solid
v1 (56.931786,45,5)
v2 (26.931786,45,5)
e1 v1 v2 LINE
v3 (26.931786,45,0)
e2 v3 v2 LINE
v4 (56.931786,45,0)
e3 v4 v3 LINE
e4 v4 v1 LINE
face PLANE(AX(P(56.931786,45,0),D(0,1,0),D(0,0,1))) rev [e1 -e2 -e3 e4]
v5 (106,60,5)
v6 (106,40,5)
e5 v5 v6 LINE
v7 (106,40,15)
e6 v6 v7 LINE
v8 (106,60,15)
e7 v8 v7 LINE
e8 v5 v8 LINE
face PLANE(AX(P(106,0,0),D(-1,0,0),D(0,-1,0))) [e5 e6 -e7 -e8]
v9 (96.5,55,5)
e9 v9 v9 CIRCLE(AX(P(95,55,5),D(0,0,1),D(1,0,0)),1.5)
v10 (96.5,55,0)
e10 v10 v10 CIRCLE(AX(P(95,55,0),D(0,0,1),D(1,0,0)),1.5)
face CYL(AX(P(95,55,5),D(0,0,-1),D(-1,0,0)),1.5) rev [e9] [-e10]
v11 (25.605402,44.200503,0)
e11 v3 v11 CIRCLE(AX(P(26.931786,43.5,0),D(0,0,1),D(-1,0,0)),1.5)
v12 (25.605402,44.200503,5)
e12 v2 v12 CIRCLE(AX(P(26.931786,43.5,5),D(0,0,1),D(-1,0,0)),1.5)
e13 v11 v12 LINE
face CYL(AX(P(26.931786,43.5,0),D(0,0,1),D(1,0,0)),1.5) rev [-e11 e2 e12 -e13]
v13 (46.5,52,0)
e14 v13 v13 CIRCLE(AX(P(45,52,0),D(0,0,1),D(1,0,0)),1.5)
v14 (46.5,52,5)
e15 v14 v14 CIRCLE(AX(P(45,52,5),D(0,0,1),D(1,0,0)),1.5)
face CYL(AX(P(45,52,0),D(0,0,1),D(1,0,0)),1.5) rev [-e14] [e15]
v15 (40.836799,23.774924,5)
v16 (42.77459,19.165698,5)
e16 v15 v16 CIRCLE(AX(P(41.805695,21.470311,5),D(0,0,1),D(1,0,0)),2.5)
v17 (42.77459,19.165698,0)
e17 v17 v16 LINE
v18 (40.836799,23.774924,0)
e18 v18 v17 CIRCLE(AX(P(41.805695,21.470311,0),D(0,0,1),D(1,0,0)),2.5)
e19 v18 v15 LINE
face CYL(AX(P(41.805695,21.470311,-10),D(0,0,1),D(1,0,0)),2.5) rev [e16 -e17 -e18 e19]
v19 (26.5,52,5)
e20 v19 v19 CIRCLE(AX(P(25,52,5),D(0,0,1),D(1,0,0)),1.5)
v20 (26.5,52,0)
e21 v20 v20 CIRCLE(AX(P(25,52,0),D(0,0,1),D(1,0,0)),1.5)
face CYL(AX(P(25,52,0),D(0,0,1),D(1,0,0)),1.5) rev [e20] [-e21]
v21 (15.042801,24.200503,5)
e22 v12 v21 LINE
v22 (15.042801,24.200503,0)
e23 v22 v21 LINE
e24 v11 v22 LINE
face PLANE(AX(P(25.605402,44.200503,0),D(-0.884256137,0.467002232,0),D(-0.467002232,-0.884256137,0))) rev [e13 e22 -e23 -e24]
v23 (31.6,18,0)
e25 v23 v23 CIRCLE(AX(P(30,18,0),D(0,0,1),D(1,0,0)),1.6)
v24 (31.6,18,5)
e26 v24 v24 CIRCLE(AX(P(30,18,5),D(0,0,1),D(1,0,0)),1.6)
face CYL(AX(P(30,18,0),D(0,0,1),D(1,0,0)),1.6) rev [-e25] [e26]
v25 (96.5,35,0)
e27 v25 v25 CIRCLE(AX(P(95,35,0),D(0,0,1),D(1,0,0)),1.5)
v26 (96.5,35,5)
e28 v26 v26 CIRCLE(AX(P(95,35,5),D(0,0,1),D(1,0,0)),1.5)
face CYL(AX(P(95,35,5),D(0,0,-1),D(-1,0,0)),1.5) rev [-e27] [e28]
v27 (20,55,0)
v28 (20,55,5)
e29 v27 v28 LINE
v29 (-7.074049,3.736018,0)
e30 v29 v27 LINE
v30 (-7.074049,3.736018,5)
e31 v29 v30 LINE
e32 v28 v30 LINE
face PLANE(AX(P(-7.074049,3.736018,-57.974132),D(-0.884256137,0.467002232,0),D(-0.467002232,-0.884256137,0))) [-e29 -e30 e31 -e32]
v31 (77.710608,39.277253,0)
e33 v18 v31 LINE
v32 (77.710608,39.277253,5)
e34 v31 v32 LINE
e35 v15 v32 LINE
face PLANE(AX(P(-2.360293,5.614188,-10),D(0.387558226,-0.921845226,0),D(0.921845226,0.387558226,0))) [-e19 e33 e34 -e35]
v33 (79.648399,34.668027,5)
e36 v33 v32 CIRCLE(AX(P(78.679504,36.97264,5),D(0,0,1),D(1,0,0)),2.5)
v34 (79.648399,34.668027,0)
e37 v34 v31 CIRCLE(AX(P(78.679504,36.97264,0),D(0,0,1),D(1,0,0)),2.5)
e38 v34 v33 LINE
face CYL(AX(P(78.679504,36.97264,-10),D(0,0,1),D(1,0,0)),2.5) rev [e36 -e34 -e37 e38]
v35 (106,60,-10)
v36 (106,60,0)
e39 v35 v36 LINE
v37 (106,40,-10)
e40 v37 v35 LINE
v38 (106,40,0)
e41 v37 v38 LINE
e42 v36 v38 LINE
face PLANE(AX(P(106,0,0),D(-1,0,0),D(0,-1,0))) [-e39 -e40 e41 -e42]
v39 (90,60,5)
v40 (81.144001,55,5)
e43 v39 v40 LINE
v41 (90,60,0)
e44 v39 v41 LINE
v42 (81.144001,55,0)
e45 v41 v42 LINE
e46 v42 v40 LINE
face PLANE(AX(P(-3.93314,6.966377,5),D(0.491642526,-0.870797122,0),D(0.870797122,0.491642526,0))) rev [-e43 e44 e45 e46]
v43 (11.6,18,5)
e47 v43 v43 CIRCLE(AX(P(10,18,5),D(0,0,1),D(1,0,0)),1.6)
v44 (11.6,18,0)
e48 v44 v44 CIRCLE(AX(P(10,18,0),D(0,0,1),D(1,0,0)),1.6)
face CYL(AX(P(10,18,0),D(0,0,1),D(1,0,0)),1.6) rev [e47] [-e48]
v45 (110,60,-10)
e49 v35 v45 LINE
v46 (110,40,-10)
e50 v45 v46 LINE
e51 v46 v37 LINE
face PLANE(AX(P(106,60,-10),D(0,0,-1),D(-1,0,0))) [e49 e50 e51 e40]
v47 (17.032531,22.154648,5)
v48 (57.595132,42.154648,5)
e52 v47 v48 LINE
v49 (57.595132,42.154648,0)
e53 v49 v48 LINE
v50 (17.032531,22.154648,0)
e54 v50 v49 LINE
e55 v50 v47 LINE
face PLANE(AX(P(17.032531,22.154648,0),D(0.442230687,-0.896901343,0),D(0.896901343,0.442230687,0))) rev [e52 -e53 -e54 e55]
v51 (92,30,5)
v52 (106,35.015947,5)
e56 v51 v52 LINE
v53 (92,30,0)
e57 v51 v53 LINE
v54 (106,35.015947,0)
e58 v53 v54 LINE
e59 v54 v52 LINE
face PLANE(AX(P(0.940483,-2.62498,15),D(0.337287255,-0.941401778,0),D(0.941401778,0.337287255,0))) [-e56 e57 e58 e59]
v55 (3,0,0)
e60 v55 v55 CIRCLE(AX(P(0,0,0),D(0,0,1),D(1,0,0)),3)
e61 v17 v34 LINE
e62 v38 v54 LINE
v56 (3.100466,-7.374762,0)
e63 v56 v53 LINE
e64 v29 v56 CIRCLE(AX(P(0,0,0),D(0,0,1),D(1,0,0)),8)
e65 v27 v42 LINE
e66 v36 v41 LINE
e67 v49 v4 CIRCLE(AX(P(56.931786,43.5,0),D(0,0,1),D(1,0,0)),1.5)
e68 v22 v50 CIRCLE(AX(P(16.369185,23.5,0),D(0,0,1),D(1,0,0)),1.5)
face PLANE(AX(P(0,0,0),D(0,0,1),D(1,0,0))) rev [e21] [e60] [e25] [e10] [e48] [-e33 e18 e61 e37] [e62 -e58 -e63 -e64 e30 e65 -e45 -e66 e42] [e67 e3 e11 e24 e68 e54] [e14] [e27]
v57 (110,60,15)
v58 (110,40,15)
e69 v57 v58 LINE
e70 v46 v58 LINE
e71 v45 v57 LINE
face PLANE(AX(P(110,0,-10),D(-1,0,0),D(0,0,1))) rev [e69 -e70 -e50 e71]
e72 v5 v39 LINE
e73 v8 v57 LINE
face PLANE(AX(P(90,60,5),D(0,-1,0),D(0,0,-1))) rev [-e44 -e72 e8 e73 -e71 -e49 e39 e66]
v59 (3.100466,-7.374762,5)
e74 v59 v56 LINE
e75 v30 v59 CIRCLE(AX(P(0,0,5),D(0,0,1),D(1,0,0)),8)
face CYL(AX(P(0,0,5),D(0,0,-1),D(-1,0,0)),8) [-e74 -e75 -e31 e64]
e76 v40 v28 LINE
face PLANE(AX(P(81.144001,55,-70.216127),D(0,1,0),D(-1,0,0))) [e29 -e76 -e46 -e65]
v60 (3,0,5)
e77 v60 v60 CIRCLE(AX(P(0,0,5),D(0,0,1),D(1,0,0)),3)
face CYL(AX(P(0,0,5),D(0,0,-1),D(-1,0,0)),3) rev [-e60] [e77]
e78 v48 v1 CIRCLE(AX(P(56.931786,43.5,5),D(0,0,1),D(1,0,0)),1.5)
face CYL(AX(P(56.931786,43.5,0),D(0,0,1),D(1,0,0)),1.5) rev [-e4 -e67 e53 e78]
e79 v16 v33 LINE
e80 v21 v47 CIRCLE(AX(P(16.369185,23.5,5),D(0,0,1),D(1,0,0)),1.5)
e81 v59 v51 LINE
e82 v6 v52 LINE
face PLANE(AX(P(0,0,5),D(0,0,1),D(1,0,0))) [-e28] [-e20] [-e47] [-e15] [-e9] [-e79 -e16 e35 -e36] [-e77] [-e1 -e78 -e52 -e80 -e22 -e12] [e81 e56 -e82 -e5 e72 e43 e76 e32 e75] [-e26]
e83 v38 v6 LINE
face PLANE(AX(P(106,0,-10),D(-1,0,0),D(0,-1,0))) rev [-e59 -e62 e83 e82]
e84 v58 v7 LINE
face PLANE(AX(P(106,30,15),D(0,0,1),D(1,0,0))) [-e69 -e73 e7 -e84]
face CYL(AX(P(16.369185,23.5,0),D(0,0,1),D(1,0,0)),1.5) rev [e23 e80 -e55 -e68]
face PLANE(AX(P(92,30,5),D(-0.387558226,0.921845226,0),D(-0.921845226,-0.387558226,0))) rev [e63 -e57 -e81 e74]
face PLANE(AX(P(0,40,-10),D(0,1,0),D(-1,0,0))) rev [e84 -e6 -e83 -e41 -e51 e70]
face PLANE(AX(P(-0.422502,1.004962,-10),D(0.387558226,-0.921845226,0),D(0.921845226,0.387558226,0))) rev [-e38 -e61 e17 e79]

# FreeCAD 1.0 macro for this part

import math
import FreeCAD as App
import Part
import Sketcher

V = App.Vector


def add_polygon(sketch, points):
    """Adds a closed chain of lines whose ends are joined by coincident constraints."""
    first, n = sketch.GeometryCount, len(points)
    for a, b in zip(points, points[1:] + points[:1]):
        sketch.addGeometry(Part.LineSegment(App.Vector(*a, 0), App.Vector(*b, 0)), False)
    for i in range(n):
        sketch.addConstraint(Sketcher.Constraint("Coincident", first + i, 2, first + (i + 1) % n, 1))

doc = App.newDocument("Part")
body = doc.addObject("PartDesign::Body", "Body")

sketch1 = body.newObject("Sketcher::SketchObject", "Sketch")
sketch1.AttachmentSupport = (doc.getObject("XY_Plane"), [""])
sketch1.MapMode = "FlatFace"
sketch1.addGeometry([
    Part.LineSegment(V(90, 60, 0), V(-3.93314, 6.966377, 0)),
    Part.ArcOfCircle(Part.Circle(V(0, 0, 0), V(0, 0, 1), 8), math.radians(119.448597), math.radians(292.80265)),
    Part.LineSegment(V(3.100466, -7.374762, 0), V(92, 30, 0)),
    Part.LineSegment(V(92, 30, 0), V(130, 30, 0)),
    Part.LineSegment(V(130, 30, 0), V(130, 60, 0)),
    Part.LineSegment(V(130, 60, 0), V(90, 60, 0)),
    Part.Circle(V(0, 0, 0), V(0, 0, 1), 3),
    Part.Circle(V(125, 35, 0), V(0, 0, 1), 1.5),
    Part.Circle(V(95, 35, 0), V(0, 0, 1), 1.5),
    Part.Circle(V(125, 55, 0), V(0, 0, 1), 1.5),
    Part.Circle(V(95, 55, 0), V(0, 0, 1), 1.5),
], False)
sketch1.addConstraint([
    Sketcher.Constraint("Tangent", 0, 2, 1, 1),
    Sketcher.Constraint("Tangent", 1, 2, 2, 1),
    Sketcher.Constraint("Coincident", 2, 2, 3, 1),
    Sketcher.Constraint("Coincident", 3, 2, 4, 1),
    Sketcher.Constraint("Coincident", 4, 2, 5, 1),
    Sketcher.Constraint("Coincident", 5, 2, 0, 1),
    Sketcher.Constraint("Horizontal", 3),
    Sketcher.Constraint("Vertical", 4),
    Sketcher.Constraint("Horizontal", 5),
    Sketcher.Constraint("Coincident", 1, 3, -1, 1),
    Sketcher.Constraint("Coincident", 6, 3, -1, 1),
    Sketcher.Constraint("Equal", 7, 8),
    Sketcher.Constraint("Equal", 8, 9),
    Sketcher.Constraint("Equal", 9, 10),
    Sketcher.Constraint("Horizontal", 7, 3, 8, 3),
    Sketcher.Constraint("Horizontal", 9, 3, 10, 3),
    Sketcher.Constraint("Vertical", 7, 3, 9, 3),
    Sketcher.Constraint("Vertical", 8, 3, 10, 3),
    Sketcher.Constraint("Diameter", 6, 6.0),
    Sketcher.Constraint("Diameter", 7, 3.0),
    Sketcher.Constraint("Radius", 1, 8.0),
    Sketcher.Constraint("DistanceX", 3, 1, 3, 2, 38.0),
    Sketcher.Constraint("DistanceX", 5, 2, 5, 1, 40.0),
    Sketcher.Constraint("DistanceY", 4, 1, 4, 2, 30.0),
    Sketcher.Constraint("DistanceX", -1, 1, 7, 3, 125.0),
    Sketcher.Constraint("DistanceY", -1, 1, 7, 3, 35.0),
    Sketcher.Constraint("DistanceX", -1, 1, 8, 3, 95.0),
    Sketcher.Constraint("DistanceY", -1, 1, 9, 3, 55.0),
    Sketcher.Constraint("DistanceX", -1, 1, 2, 2, 92.0),
    Sketcher.Constraint("DistanceY", -1, 1, 2, 2, 30.0),
])
pad1 = body.newObject("PartDesign::Pad", "Pad")
pad1.Profile = sketch1
pad1.Length = 5

sketch2 = body.newObject("Sketcher::SketchObject", "Sketch001")
sketch2.AttachmentSupport = (doc.getObject("XY_Plane"), [""])
sketch2.MapMode = "FlatFace"
sketch2.AttachmentOffset = App.Placement(V(0, 0, 5), App.Rotation())
add_polygon(sketch2, [(81.144001, 55), (20, 55), (20, 20.478766)])
sketch2.addConstraint([
    Sketcher.Constraint("Horizontal", 0),
    Sketcher.Constraint("Vertical", 1),
    Sketcher.Constraint("DistanceX", -1, 1, 0, 2, 20.0),
    Sketcher.Constraint("DistanceY", -1, 1, 0, 2, 55.0),
    Sketcher.Constraint("DistanceX", 0, 2, 0, 1, 61.144001),
    Sketcher.Constraint("DistanceY", 1, 2, 1, 1, 34.521234),
])
pad2 = body.newObject("PartDesign::Pad", "Pad001")
pad2.Profile = sketch2
pad2.Length = 5
pad2.Reversed = True

sketch3 = body.newObject("Sketcher::SketchObject", "Sketch002")
sketch3.AttachmentSupport = (doc.getObject("XY_Plane"), [""])
sketch3.MapMode = "FlatFace"
sketch3.AttachmentOffset = App.Placement(V(0, 0, 5), App.Rotation())
sketch3.addGeometry([
    Part.Circle(V(25, 52, 0), V(0, 0, 1), 1.5),
    Part.Circle(V(45, 52, 0), V(0, 0, 1), 1.5),
], False)
sketch3.addConstraint([
    Sketcher.Constraint("Equal", 0, 1),
    Sketcher.Constraint("Horizontal", 0, 3, 1, 3),
    Sketcher.Constraint("Diameter", 0, 3.0),
    Sketcher.Constraint("DistanceX", -1, 1, 0, 3, 25.0),
    Sketcher.Constraint("DistanceY", -1, 1, 0, 3, 52.0),
    Sketcher.Constraint("DistanceX", -1, 1, 1, 3, 45.0),
])
pocket1 = body.newObject("PartDesign::Pocket", "Pocket")
pocket1.Profile = sketch3
pocket1.Type = "ThroughAll"

sketch4 = body.newObject("Sketcher::SketchObject", "Sketch003")
sketch4.AttachmentSupport = (doc.getObject("XY_Plane"), [""])
sketch4.MapMode = "FlatFace"
sketch4.addGeometry([
    Part.LineSegment(V(20, 55, 0), V(-7.074049, 3.736018, 0)),
    Part.ArcOfCircle(Part.Circle(V(0, 0, 0), V(0, 0, 1), 8), math.radians(119.448597), math.radians(152.16012)),
    Part.LineSegment(V(-3.93314, 6.966377, 0), V(20, 20.478766, 0)),
    Part.LineSegment(V(20, 20.478766, 0), V(20, 55, 0)),
], False)
sketch4.addConstraint([
    Sketcher.Constraint("Tangent", 0, 2, 1, 2),
    Sketcher.Constraint("Tangent", 1, 1, 2, 1),
    Sketcher.Constraint("Coincident", 2, 2, 3, 1),
    Sketcher.Constraint("Coincident", 3, 2, 0, 1),
    Sketcher.Constraint("Vertical", 3),
    Sketcher.Constraint("Coincident", 1, 3, -1, 1),
    Sketcher.Constraint("Radius", 1, 8.0),
    Sketcher.Constraint("DistanceX", -1, 1, 2, 2, 20.0),
    Sketcher.Constraint("DistanceY", -1, 1, 3, 2, 55.0),
    Sketcher.Constraint("DistanceY", 3, 1, 3, 2, 34.521234),
])
pad3 = body.newObject("PartDesign::Pad", "Pad002")
pad3.Profile = sketch4
pad3.Length = 5

sketch5 = body.newObject("Sketcher::SketchObject", "Sketch004")
sketch5.AttachmentSupport = (doc.getObject("XY_Plane"), [""])
sketch5.MapMode = "FlatFace"
sketch5.AttachmentOffset = App.Placement(V(0, 0, 5), App.Rotation())
sketch5.addGeometry([
    Part.LineSegment(V(25.605402, 44.200503, 0), V(15.042801, 24.200503, 0)),
    Part.ArcOfCircle(Part.Circle(V(16.369185, 23.5, 0), V(0, 0, 1), 1.5), math.radians(152.16012), math.radians(296.246295)),
    Part.LineSegment(V(17.032531, 22.154648, 0), V(57.595132, 42.154648, 0)),
    Part.ArcOfCircle(Part.Circle(V(56.931786, 43.5, 0), V(0, 0, 1), 1.5), math.radians(-63.753705), math.radians(90)),
    Part.LineSegment(V(56.931786, 45, 0), V(26.931786, 45, 0)),
    Part.ArcOfCircle(Part.Circle(V(26.931786, 43.5, 0), V(0, 0, 1), 1.5), math.radians(90), math.radians(152.16012)),
], False)
sketch5.addConstraint([
    Sketcher.Constraint("Tangent", 0, 2, 1, 1),
    Sketcher.Constraint("Tangent", 1, 2, 2, 1),
    Sketcher.Constraint("Tangent", 2, 2, 3, 1),
    Sketcher.Constraint("Tangent", 3, 2, 4, 1),
    Sketcher.Constraint("Tangent", 4, 2, 5, 1),
    Sketcher.Constraint("Tangent", 5, 2, 0, 1),
    Sketcher.Constraint("Horizontal", 4),
    Sketcher.Constraint("Equal", 1, 3),
    Sketcher.Constraint("Equal", 3, 5),
    Sketcher.Constraint("Radius", 1, 1.5),
    Sketcher.Constraint("DistanceX", 4, 2, 4, 1, 30.0),
    Sketcher.Constraint("DistanceY", -1, 1, 3, 2, 45.0),
    Sketcher.Constraint("DistanceY", 1, 3, 3, 3, 20.0),
    Sketcher.Constraint("DistanceX", -1, 1, 0, 2, 15.042801),
    Sketcher.Constraint("DistanceX", -1, 1, 5, 2, 25.605402),
])
pocket2 = body.newObject("PartDesign::Pocket", "Pocket001")
pocket2.Profile = sketch5
pocket2.Type = "ThroughAll"

sketch6 = body.newObject("Sketcher::SketchObject", "Sketch005")
sketch6.AttachmentSupport = (doc.getObject("XY_Plane"), [""])
sketch6.MapMode = "FlatFace"
sketch6.AttachmentOffset = App.Placement(V(0, 0, 5), App.Rotation())
sketch6.addGeometry([
    Part.Circle(V(10, 18, 0), V(0, 0, 1), 1.6),
    Part.Circle(V(30, 18, 0), V(0, 0, 1), 1.6),
], False)
sketch6.addConstraint([
    Sketcher.Constraint("Equal", 0, 1),
    Sketcher.Constraint("Horizontal", 0, 3, 1, 3),
    Sketcher.Constraint("Diameter", 0, 3.2),
    Sketcher.Constraint("DistanceX", -1, 1, 0, 3, 10.0),
    Sketcher.Constraint("DistanceY", -1, 1, 0, 3, 18.0),
    Sketcher.Constraint("DistanceX", -1, 1, 1, 3, 30.0),
])
pocket3 = body.newObject("PartDesign::Pocket", "Pocket002")
pocket3.Profile = sketch6
pocket3.Type = "ThroughAll"

sketch7 = body.newObject("Sketcher::SketchObject", "Sketch006")
sketch7.AttachmentSupport = (doc.getObject("YZ_Plane"), [""])
sketch7.MapMode = "FlatFace"
sketch7.AttachmentOffset = App.Placement(V(0, 0, 130), App.Rotation())
add_polygon(sketch7, [(30, 15), (30, -10), (60, -10), (60, 15)])
sketch7.addConstraint([
    Sketcher.Constraint("Vertical", 0),
    Sketcher.Constraint("Horizontal", 1),
    Sketcher.Constraint("Vertical", 2),
    Sketcher.Constraint("Horizontal", 3),
    Sketcher.Constraint("DistanceX", 1, 1, 1, 2, 30.0),
    Sketcher.Constraint("DistanceY", 0, 2, 0, 1, 25.0),
    Sketcher.Constraint("DistanceX", -1, 1, 0, 2, 30.0),
    Sketcher.Constraint("DistanceY", 0, 2, -1, 1, 10.0),
])
pad4 = body.newObject("PartDesign::Pad", "Pad003")
pad4.Profile = sketch7
pad4.Length = 24
pad4.Reversed = True

sketch8 = body.newObject("Sketcher::SketchObject", "Sketch007")
sketch8.AttachmentSupport = (doc.getObject("XY_Plane"), [""])
sketch8.MapMode = "FlatFace"
sketch8.AttachmentOffset = App.Placement(V(0, 0, 5), App.Rotation())
add_polygon(sketch8, [(130, 30), (130, 40), (119.91098, 40), (92, 30)])
sketch8.addConstraint([
    Sketcher.Constraint("Vertical", 0),
    Sketcher.Constraint("Horizontal", 1),
    Sketcher.Constraint("Horizontal", 3),
    Sketcher.Constraint("DistanceX", 3, 1, 3, 2, 38.0),
    Sketcher.Constraint("DistanceY", 0, 1, 0, 2, 10.0),
    Sketcher.Constraint("DistanceX", -1, 1, 0, 2, 130.0),
    Sketcher.Constraint("DistanceY", -1, 1, 0, 2, 40.0),
    Sketcher.Constraint("DistanceX", 1, 2, 1, 1, 10.08902),
])
pocket4 = body.newObject("PartDesign::Pocket", "Pocket003")
pocket4.Profile = sketch8
pocket4.Type = "ThroughAll"
pocket4.Midplane = True

sketch9 = body.newObject("Sketcher::SketchObject", "Sketch008")
sketch9.AttachmentSupport = (doc.getObject("XY_Plane"), [""])
sketch9.MapMode = "FlatFace"
sketch9.AttachmentOffset = App.Placement(V(0, 0, 5), App.Rotation())
sketch9.addGeometry([
    Part.LineSegment(V(77.710608, 39.277253, 0), V(40.836799, 23.774924, 0)),
    Part.ArcOfCircle(Part.Circle(V(41.805695, 21.470311, 0), V(0, 0, 1), 2.5), math.radians(112.80265), math.radians(292.80265)),
    Part.LineSegment(V(42.77459, 19.165698, 0), V(79.648399, 34.668027, 0)),
    Part.ArcOfCircle(Part.Circle(V(78.679504, 36.97264, 0), V(0, 0, 1), 2.5), math.radians(-67.19735), math.radians(112.80265)),
], False)
sketch9.addConstraint([
    Sketcher.Constraint("Tangent", 0, 2, 1, 1),
    Sketcher.Constraint("Tangent", 1, 2, 2, 1),
    Sketcher.Constraint("Tangent", 2, 2, 3, 1),
    Sketcher.Constraint("Tangent", 3, 2, 0, 1),
    Sketcher.Constraint("Equal", 1, 3),
    Sketcher.Constraint("Radius", 1, 2.5),
    Sketcher.Constraint("Distance", 0, 40.0),
    Sketcher.Constraint("DistanceX", -1, 1, 0, 2, 40.836799),
    Sketcher.Constraint("DistanceY", -1, 1, 1, 2, 19.165698),
    Sketcher.Constraint("DistanceX", -1, 1, 2, 2, 79.648399),
])
pocket5 = body.newObject("PartDesign::Pocket", "Pocket004")
pocket5.Profile = sketch9
pocket5.Type = "ThroughAll"

sketch10 = body.newObject("Sketcher::SketchObject", "Sketch009")
sketch10.AttachmentSupport = (doc.getObject("XY_Plane"), [""])
sketch10.MapMode = "FlatFace"
sketch10.AttachmentOffset = App.Placement(V(0, 0, 15), App.Rotation())
add_polygon(sketch10, [(106, 35.015947), (119.91098, 40), (130, 40), (130, 60), (110, 60), (110, 40), (106, 40)])
sketch10.addConstraint([
    Sketcher.Constraint("Horizontal", 1),
    Sketcher.Constraint("Vertical", 2),
    Sketcher.Constraint("Horizontal", 3),
    Sketcher.Constraint("Vertical", 4),
    Sketcher.Constraint("Horizontal", 5),
    Sketcher.Constraint("Vertical", 6),
    Sketcher.Constraint("Horizontal", 1, 2, 4, 2),
    Sketcher.Constraint("Equal", 3, 2),
    Sketcher.Constraint("DistanceX", 3, 2, 3, 1, 20.0),
    Sketcher.Constraint("DistanceX", 5, 2, 5, 1, 4.0),
    Sketcher.Constraint("DistanceY", -1, 1, 0, 2, 40.0),
    Sketcher.Constraint("DistanceX", -1, 1, 1, 2, 130.0),
    Sketcher.Constraint("DistanceX", 1, 1, 1, 2, 10.08902),
    Sketcher.Constraint("Distance", 0, 14.776879),
])
pocket6 = body.newObject("PartDesign::Pocket", "Pocket005")
pocket6.Profile = sketch10
pocket6.Type = "ThroughAll"

doc.recompute()
